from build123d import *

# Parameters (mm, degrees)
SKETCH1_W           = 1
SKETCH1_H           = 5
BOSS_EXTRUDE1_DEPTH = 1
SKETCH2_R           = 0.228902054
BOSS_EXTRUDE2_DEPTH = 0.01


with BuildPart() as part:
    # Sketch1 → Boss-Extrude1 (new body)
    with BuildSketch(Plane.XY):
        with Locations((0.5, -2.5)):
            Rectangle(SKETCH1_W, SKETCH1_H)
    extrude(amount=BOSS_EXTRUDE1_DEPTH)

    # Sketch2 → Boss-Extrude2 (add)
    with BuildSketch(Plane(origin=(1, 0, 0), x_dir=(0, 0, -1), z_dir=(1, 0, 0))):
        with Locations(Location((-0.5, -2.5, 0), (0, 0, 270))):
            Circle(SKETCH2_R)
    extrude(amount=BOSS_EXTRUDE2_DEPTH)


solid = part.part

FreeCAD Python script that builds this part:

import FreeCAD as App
import Part
import Sketcher

V = App.Vector
Q = App.Units.Quantity


def add_polygon(sketch, points):
    """Adds a closed chain of lines whose ends are joined by coincident constraints."""
    first, n = sketch.GeometryCount, len(points)
    for a, b in zip(points, points[1:] + points[:1]):
        sketch.addGeometry(Part.LineSegment(App.Vector(*a, 0), App.Vector(*b, 0)), False)
    for i in range(n):
        sketch.addConstraint(Sketcher.Constraint("Coincident", first + i, 2, first + (i + 1) % n, 1))

doc = App.newDocument("Part")
params = doc.addObject("Spreadsheet::Sheet", "Params")
for row, (alias, value) in enumerate([
    ("sketch1_width", "1 mm"),
    ("sketch1_height", "5 mm"),
    ("pad1_length", "1 mm"),
    ("pad2_length", "0.01 mm"),
], start=1):
    params.set(f"A{row}", alias)
    params.set(f"B{row}", "=" + value)
    params.setAlias(f"B{row}", alias)

body = doc.addObject("PartDesign::Body", "Body")

sketch1 = doc.addObject("Sketcher::SketchObject", "Sketch")
body.addObject(sketch1)
sketch1.AttachmentSupport = (doc.XY_Plane, [""])
sketch1.MapMode = "FlatFace"
add_polygon(sketch1, [(0, 0), (0, -5), (1, -5), (1, 0)])
sketch1.addConstraint([
    Sketcher.Constraint("Vertical", 0),
    Sketcher.Constraint("Horizontal", 1),
    Sketcher.Constraint("Vertical", 2),
    Sketcher.Constraint("Horizontal", 3),
    Sketcher.Constraint("Coincident", 3, 2, -1, 1),
    Sketcher.Constraint("DistanceX", 1, 1, 1, 2, Q("1 mm")),
    Sketcher.Constraint("DistanceY", 0, 2, 0, 1, Q("5 mm")),
])
sketch1.setExpression("Constraints[9]", "Params.sketch1_width")
sketch1.setExpression("Constraints[10]", "Params.sketch1_height")
pad1 = doc.addObject("PartDesign::Pad", "Pad")
body.addObject(pad1)
pad1.Profile = sketch1
pad1.setExpression("Length", "Params.pad1_length")

sketch2 = doc.addObject("Sketcher::SketchObject", "Sketch001")
body.addObject(sketch2)
sketch2.AttachmentSupport = (doc.YZ_Plane, [""])
sketch2.MapMode = "FlatFace"
sketch2.AttachmentOffset = App.Placement(V(0, 0, 1), App.Rotation())
sketch2.addGeometry(Part.Circle(V(-2.5, 0.5, 0), V(0, 0, 1), 0.228902), False)
sketch2.addConstraint([
    Sketcher.Constraint("DistanceX", 0, 3, -1, 1, Q("2.5 mm")),
    Sketcher.Constraint("DistanceY", -1, 1, 0, 3, Q("0.5 mm")),
    Sketcher.Constraint("Diameter", 0, Q("0.457804 mm")),
])
pad2 = doc.addObject("PartDesign::Pad", "Pad001")
body.addObject(pad2)
pad2.Profile = sketch2
pad2.setExpression("Length", "Params.pad2_length")

doc.recompute()
